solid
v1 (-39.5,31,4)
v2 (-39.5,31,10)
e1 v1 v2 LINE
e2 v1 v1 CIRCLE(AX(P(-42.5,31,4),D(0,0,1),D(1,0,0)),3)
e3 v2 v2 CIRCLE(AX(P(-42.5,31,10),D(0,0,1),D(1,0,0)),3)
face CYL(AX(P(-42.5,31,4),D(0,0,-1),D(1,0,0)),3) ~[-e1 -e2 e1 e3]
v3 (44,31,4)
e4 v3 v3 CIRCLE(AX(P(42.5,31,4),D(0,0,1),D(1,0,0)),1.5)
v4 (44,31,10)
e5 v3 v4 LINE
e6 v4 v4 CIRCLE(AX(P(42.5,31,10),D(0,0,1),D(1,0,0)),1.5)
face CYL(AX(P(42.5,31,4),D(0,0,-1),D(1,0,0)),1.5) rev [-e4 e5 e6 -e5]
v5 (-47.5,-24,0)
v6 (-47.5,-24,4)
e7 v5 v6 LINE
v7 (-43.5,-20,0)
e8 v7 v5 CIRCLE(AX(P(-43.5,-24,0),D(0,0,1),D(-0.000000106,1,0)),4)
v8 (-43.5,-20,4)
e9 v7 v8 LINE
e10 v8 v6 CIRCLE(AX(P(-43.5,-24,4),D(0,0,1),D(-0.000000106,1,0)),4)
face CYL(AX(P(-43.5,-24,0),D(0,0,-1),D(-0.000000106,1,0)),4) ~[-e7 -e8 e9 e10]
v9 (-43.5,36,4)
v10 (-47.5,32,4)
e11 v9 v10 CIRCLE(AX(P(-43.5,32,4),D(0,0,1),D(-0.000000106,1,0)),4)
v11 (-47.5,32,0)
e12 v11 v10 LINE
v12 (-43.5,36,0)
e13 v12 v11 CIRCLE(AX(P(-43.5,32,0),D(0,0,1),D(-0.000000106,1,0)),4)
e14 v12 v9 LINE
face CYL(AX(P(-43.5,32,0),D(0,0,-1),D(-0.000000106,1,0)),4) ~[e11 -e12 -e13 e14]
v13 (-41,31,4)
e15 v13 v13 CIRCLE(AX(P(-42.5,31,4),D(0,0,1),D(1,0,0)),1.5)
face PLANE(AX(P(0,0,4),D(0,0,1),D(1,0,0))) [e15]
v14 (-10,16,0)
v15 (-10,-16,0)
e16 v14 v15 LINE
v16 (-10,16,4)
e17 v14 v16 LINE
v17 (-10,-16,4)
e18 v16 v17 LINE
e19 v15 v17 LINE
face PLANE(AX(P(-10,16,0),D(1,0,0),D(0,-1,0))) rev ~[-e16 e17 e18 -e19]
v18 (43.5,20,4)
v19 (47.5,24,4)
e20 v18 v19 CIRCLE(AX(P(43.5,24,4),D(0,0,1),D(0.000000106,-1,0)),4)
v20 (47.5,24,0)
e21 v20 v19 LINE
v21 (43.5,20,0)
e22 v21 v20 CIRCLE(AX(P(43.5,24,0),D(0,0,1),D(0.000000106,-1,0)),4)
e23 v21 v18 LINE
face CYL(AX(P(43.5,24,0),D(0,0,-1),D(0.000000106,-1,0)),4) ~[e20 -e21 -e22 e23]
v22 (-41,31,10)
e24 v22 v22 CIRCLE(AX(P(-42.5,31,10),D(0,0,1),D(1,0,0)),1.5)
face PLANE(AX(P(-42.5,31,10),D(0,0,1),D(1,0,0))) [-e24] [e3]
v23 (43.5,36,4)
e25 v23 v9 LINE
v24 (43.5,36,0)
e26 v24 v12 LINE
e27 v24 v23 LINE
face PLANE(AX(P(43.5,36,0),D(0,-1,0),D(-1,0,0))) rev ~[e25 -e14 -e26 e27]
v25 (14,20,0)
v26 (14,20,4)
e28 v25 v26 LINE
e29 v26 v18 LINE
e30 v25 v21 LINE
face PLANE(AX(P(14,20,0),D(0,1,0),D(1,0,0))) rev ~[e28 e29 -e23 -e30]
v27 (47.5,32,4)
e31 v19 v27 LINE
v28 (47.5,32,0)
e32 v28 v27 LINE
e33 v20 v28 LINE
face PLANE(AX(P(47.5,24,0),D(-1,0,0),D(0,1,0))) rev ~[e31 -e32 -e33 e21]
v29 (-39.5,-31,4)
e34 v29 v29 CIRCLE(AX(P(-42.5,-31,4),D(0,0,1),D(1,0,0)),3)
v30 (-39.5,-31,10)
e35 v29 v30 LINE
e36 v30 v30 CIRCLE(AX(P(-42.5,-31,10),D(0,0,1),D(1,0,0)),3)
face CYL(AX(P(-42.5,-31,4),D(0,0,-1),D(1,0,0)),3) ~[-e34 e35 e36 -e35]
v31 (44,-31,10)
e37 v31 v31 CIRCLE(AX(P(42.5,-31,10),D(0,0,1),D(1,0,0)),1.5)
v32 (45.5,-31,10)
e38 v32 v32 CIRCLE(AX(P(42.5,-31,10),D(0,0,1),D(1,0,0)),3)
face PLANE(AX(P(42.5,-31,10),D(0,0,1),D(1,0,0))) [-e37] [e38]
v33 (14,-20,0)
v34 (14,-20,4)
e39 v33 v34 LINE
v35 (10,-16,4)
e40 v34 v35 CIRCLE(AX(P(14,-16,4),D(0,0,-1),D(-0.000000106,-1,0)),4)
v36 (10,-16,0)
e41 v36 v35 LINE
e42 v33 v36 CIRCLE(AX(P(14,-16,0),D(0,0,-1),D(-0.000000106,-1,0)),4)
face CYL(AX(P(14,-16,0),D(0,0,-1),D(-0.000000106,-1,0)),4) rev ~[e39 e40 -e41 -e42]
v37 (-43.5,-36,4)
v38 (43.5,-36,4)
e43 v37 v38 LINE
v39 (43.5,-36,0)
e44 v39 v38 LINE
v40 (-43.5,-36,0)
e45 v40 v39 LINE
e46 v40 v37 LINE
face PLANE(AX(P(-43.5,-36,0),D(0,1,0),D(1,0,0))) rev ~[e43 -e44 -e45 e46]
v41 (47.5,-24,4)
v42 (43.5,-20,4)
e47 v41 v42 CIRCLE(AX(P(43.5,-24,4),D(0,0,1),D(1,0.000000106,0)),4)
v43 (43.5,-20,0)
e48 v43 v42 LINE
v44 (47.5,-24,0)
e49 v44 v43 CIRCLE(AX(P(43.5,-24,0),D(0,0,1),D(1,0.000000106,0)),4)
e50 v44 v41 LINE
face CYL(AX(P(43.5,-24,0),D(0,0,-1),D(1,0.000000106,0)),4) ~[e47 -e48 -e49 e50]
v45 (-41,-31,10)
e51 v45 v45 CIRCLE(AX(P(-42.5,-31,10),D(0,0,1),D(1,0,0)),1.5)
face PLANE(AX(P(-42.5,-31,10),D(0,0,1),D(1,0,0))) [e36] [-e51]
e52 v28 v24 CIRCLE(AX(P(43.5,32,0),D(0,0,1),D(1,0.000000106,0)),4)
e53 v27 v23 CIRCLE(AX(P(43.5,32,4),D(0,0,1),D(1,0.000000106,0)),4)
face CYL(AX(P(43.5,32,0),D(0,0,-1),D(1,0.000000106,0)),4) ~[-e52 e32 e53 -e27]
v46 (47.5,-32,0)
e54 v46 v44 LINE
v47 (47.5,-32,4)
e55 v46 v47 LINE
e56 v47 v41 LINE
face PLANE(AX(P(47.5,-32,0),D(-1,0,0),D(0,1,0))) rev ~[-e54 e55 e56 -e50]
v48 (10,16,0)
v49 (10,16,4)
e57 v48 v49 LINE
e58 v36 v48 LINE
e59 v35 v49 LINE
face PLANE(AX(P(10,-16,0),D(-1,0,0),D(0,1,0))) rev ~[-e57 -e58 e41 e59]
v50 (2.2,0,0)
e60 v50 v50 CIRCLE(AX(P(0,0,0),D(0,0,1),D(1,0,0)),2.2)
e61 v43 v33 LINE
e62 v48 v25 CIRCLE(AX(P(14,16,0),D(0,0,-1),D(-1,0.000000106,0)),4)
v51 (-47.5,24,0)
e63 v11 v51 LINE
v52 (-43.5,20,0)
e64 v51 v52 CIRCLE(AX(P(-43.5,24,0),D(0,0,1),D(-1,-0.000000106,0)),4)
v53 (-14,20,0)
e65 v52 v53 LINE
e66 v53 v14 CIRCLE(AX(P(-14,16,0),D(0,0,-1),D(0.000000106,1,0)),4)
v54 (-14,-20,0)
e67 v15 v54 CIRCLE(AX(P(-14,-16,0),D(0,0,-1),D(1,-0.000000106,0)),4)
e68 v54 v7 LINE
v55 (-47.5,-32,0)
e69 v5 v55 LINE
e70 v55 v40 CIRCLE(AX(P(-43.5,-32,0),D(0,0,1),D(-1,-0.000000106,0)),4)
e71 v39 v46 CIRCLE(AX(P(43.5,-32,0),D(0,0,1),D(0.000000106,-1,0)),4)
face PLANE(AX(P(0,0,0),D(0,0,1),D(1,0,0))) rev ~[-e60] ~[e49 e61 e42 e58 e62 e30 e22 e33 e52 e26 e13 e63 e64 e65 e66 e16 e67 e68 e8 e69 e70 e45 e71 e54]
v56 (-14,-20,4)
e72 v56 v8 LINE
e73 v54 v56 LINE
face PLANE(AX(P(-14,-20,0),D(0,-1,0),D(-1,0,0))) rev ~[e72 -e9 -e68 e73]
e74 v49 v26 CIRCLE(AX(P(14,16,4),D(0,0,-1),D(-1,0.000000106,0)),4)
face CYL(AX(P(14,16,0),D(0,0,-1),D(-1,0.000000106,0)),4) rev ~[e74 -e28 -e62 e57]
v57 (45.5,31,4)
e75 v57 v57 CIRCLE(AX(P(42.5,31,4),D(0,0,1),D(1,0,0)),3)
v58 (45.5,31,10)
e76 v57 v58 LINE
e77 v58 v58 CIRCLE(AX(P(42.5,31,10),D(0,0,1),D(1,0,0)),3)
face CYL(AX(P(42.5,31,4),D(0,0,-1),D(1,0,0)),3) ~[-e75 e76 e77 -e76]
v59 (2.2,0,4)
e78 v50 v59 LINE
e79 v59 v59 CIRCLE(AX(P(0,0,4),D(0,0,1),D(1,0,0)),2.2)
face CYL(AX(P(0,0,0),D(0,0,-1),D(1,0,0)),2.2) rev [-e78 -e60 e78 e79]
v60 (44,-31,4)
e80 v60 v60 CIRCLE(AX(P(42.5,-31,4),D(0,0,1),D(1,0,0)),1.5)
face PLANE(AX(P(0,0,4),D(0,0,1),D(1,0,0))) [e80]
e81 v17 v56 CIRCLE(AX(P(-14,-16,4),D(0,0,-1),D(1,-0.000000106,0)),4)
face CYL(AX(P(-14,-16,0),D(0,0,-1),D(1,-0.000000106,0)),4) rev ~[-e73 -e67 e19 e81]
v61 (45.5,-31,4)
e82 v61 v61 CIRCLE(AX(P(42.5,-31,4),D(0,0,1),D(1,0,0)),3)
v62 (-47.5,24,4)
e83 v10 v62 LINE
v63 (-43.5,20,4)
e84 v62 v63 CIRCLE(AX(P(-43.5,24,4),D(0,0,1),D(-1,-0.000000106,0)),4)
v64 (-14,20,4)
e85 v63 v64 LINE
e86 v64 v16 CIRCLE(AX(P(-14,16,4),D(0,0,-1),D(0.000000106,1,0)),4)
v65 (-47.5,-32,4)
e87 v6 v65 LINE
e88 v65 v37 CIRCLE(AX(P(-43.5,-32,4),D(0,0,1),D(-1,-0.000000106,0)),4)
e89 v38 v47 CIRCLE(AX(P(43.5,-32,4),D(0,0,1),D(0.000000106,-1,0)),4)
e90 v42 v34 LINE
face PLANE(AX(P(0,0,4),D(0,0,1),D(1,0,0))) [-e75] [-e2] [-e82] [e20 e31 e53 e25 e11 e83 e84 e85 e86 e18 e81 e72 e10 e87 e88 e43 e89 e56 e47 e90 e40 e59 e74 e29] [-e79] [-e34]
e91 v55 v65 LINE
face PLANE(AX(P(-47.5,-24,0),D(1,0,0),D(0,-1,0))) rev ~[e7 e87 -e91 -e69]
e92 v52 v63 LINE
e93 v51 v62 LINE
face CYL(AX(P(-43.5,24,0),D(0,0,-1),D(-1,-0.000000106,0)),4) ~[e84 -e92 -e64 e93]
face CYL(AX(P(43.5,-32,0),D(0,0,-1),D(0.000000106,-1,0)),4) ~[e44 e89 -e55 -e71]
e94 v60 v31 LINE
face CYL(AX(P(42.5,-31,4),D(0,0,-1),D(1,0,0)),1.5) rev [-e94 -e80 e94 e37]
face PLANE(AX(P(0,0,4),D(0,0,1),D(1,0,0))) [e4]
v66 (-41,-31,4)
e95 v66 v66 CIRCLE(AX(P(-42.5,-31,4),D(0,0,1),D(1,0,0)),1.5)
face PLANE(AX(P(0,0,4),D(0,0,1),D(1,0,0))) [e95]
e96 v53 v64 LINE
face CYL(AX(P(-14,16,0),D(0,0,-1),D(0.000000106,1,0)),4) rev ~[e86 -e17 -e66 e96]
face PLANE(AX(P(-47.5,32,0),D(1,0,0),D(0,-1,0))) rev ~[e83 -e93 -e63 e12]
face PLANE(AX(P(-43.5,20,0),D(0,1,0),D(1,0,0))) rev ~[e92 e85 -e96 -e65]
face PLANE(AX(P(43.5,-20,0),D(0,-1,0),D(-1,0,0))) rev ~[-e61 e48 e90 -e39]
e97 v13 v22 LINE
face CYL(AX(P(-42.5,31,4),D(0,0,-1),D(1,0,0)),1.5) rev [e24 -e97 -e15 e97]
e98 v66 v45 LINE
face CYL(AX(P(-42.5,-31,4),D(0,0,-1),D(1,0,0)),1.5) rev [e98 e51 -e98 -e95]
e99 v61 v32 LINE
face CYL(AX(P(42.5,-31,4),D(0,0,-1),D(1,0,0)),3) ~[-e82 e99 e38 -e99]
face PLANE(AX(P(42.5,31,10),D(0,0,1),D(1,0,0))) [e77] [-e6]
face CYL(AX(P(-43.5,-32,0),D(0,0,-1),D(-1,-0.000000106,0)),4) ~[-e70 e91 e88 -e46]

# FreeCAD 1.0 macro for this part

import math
import FreeCAD as App
import Part
import Sketcher

V = App.Vector

doc = App.newDocument("Part")
body = doc.addObject("PartDesign::Body", "Body")

# Sketch on XY plane
sketch1 = body.newObject("Sketcher::SketchObject", "Sketch")
sketch1.AttachmentSupport = (doc.getObject("XY_Plane"), [""])
sketch1.MapMode = "FlatFace"
sketch1.addGeometry([
    Part.ArcOfCircle(Part.Circle(V(43.5, 32, 0), V(0, 0, 1), 4), math.radians(0), math.radians(90)),  # 0
    Part.LineSegment(V(43.5, 36, 0), V(-43.5, 36, 0)),  # 1
    Part.ArcOfCircle(Part.Circle(V(-43.5, 32, 0), V(0, 0, 1), 4), math.radians(90), math.radians(180)),  # 2
    Part.LineSegment(V(-47.5, 32, 0), V(-47.5, 24, 0)),  # 3
    Part.ArcOfCircle(Part.Circle(V(-43.5, 24, 0), V(0, 0, 1), 4), math.radians(-180), math.radians(-90)),  # 4
    Part.LineSegment(V(-43.5, 20, 0), V(-14, 20, 0)),  # 5
    Part.ArcOfCircle(Part.Circle(V(-14, 16, 0), V(0, 0, 1), 4), math.radians(0), math.radians(90)),  # 6
    Part.LineSegment(V(-10, 16, 0), V(-10, -16, 0)),  # 7
    Part.ArcOfCircle(Part.Circle(V(-14, -16, 0), V(0, 0, 1), 4), math.radians(-90), math.radians(0)),  # 8
    Part.LineSegment(V(-14, -20, 0), V(-43.5, -20, 0)),  # 9
    Part.ArcOfCircle(Part.Circle(V(-43.5, -24, 0), V(0, 0, 1), 4), math.radians(90), math.radians(180)),  # 10
    Part.LineSegment(V(-47.5, -24, 0), V(-47.5, -32, 0)),  # 11
    Part.ArcOfCircle(Part.Circle(V(-43.5, -32, 0), V(0, 0, 1), 4), math.radians(-180), math.radians(-90)),  # 12
    Part.LineSegment(V(-43.5, -36, 0), V(43.5, -36, 0)),  # 13
    Part.ArcOfCircle(Part.Circle(V(43.5, -32, 0), V(0, 0, 1), 4), math.radians(-90), math.radians(0)),  # 14
    Part.LineSegment(V(47.5, -32, 0), V(47.5, -24, 0)),  # 15
    Part.ArcOfCircle(Part.Circle(V(43.5, -24, 0), V(0, 0, 1), 4), math.radians(0), math.radians(90)),  # 16
    Part.LineSegment(V(43.5, -20, 0), V(14, -20, 0)),  # 17
    Part.ArcOfCircle(Part.Circle(V(14, -16, 0), V(0, 0, 1), 4), math.radians(-180), math.radians(-90)),  # 18
    Part.LineSegment(V(10, -16, 0), V(10, 16, 0)),  # 19
    Part.ArcOfCircle(Part.Circle(V(14, 16, 0), V(0, 0, 1), 4), math.radians(90), math.radians(180)),  # 20
    Part.LineSegment(V(14, 20, 0), V(43.5, 20, 0)),  # 21
    Part.ArcOfCircle(Part.Circle(V(43.5, 24, 0), V(0, 0, 1), 4), math.radians(-90), math.radians(0)),  # 22
    Part.LineSegment(V(47.5, 24, 0), V(47.5, 32, 0)),  # 23
    Part.Circle(V(0, 0, 0), V(0, 0, 1), 2.2),  # 24
], False)
sketch1.addConstraint([
    Sketcher.Constraint("Tangent", 0, 2, 1, 1),
    Sketcher.Constraint("Tangent", 1, 2, 2, 1),
    Sketcher.Constraint("Tangent", 2, 2, 3, 1),
    Sketcher.Constraint("Tangent", 3, 2, 4, 1),
    Sketcher.Constraint("Tangent", 4, 2, 5, 1),
    Sketcher.Constraint("Tangent", 5, 2, 6, 2),
    Sketcher.Constraint("Tangent", 6, 1, 7, 1),
    Sketcher.Constraint("Tangent", 7, 2, 8, 2),
    Sketcher.Constraint("Tangent", 8, 1, 9, 1),
    Sketcher.Constraint("Tangent", 9, 2, 10, 1),
    Sketcher.Constraint("Tangent", 10, 2, 11, 1),
    Sketcher.Constraint("Tangent", 11, 2, 12, 1),
    Sketcher.Constraint("Tangent", 12, 2, 13, 1),
    Sketcher.Constraint("Tangent", 13, 2, 14, 1),
    Sketcher.Constraint("Tangent", 14, 2, 15, 1),
    Sketcher.Constraint("Tangent", 15, 2, 16, 1),
    Sketcher.Constraint("Tangent", 16, 2, 17, 1),
    Sketcher.Constraint("Tangent", 17, 2, 18, 2),
    Sketcher.Constraint("Tangent", 18, 1, 19, 1),
    Sketcher.Constraint("Tangent", 19, 2, 20, 2),
    Sketcher.Constraint("Tangent", 20, 1, 21, 1),
    Sketcher.Constraint("Tangent", 21, 2, 22, 1),
    Sketcher.Constraint("Tangent", 22, 2, 23, 1),
    Sketcher.Constraint("Tangent", 23, 2, 0, 1),
    Sketcher.Constraint("Horizontal", 1),
    Sketcher.Constraint("Vertical", 3),
    Sketcher.Constraint("Horizontal", 5),
    Sketcher.Constraint("Vertical", 7),
    Sketcher.Constraint("Horizontal", 9),
    Sketcher.Constraint("Vertical", 11),
    Sketcher.Constraint("Horizontal", 13),
    Sketcher.Constraint("Vertical", 15),
    Sketcher.Constraint("Horizontal", 17),
    Sketcher.Constraint("Vertical", 19),
    Sketcher.Constraint("Horizontal", 21),
    Sketcher.Constraint("Vertical", 23),
    Sketcher.Constraint("Coincident", 24, 3, -1, 1),
    Sketcher.Constraint("Equal", 0, 2),
    Sketcher.Constraint("Equal", 2, 4),
    Sketcher.Constraint("Equal", 4, 6),
    Sketcher.Constraint("Equal", 6, 8),
    Sketcher.Constraint("Equal", 8, 10),
    Sketcher.Constraint("Equal", 10, 12),
    Sketcher.Constraint("Equal", 12, 14),
    Sketcher.Constraint("Equal", 14, 16),
    Sketcher.Constraint("Equal", 16, 18),
    Sketcher.Constraint("Equal", 18, 20),
    Sketcher.Constraint("Equal", 20, 22),
    Sketcher.Constraint("Symmetric", 0, 3, 12, 3, -1, 1),
    Sketcher.Constraint("Symmetric", 4, 3, 16, 3, -1, 1),
    Sketcher.Constraint("Symmetric", 8, 3, 20, 3, -1, 1),
    Sketcher.Constraint("Symmetric", 10, 3, 16, 3, -2),
    Sketcher.Constraint("Radius", 0, 4.0),
    Sketcher.Constraint("Diameter", 24, 4.4),
    Sketcher.Constraint("DistanceX", 1, 2, 1, 1, 87.0),
    Sketcher.Constraint("DistanceY", 3, 2, 3, 1, 8.0),
    Sketcher.Constraint("DistanceY", 7, 2, 7, 1, 32.0),
    Sketcher.Constraint("DistanceX", 5, 1, 5, 2, 29.5),
])
pad1 = body.newObject("PartDesign::Pad", "Pad")
pad1.Profile = sketch1
pad1.Length = 4

# Sketch on XY plane
sketch2 = body.newObject("Sketcher::SketchObject", "Sketch001")
sketch2.AttachmentSupport = (doc.getObject("XY_Plane"), [""])
sketch2.MapMode = "FlatFace"
sketch2.AttachmentOffset = App.Placement(V(0, 0, 4), App.Rotation())
sketch2.addGeometry([
    Part.Circle(V(-42.5, 31, 0), V(0, 0, 1), 3),  # 0
    Part.Circle(V(-42.5, 31, 0), V(0, 0, 1), 1.5),  # 1
    Part.Circle(V(42.5, 31, 0), V(0, 0, 1), 3),  # 2
    Part.Circle(V(42.5, 31, 0), V(0, 0, 1), 1.5),  # 3
    Part.Circle(V(42.5, -31, 0), V(0, 0, 1), 3),  # 4
    Part.Circle(V(42.5, -31, 0), V(0, 0, 1), 1.5),  # 5
    Part.Circle(V(-42.5, -31, 0), V(0, 0, 1), 3),  # 6
    Part.Circle(V(-42.5, -31, 0), V(0, 0, 1), 1.5),  # 7
], False)
sketch2.addConstraint([
    Sketcher.Constraint("Coincident", 1, 3, 0, 3),
    Sketcher.Constraint("Coincident", 3, 3, 2, 3),
    Sketcher.Constraint("Coincident", 5, 3, 4, 3),
    Sketcher.Constraint("Coincident", 7, 3, 6, 3),
    Sketcher.Constraint("Equal", 0, 2),
    Sketcher.Constraint("Equal", 1, 3),
    Sketcher.Constraint("Equal", 2, 4),
    Sketcher.Constraint("Equal", 3, 5),
    Sketcher.Constraint("Equal", 4, 6),
    Sketcher.Constraint("Equal", 5, 7),
    Sketcher.Constraint("Symmetric", 0, 3, 4, 3, -1, 1),
    Sketcher.Constraint("Symmetric", 2, 3, 6, 3, -1, 1),
    Sketcher.Constraint("Symmetric", 0, 3, 2, 3, -2),
    Sketcher.Constraint("Diameter", 0, 6.0),
    Sketcher.Constraint("Diameter", 1, 3.0),
    Sketcher.Constraint("DistanceY", -1, 1, 0, 3, 31.0),
    Sketcher.Constraint("DistanceX", 0, 3, 2, 3, 85.0),
])
pad2 = body.newObject("PartDesign::Pad", "Pad001")
pad2.Profile = sketch2
pad2.Length = 6

doc.recompute()
